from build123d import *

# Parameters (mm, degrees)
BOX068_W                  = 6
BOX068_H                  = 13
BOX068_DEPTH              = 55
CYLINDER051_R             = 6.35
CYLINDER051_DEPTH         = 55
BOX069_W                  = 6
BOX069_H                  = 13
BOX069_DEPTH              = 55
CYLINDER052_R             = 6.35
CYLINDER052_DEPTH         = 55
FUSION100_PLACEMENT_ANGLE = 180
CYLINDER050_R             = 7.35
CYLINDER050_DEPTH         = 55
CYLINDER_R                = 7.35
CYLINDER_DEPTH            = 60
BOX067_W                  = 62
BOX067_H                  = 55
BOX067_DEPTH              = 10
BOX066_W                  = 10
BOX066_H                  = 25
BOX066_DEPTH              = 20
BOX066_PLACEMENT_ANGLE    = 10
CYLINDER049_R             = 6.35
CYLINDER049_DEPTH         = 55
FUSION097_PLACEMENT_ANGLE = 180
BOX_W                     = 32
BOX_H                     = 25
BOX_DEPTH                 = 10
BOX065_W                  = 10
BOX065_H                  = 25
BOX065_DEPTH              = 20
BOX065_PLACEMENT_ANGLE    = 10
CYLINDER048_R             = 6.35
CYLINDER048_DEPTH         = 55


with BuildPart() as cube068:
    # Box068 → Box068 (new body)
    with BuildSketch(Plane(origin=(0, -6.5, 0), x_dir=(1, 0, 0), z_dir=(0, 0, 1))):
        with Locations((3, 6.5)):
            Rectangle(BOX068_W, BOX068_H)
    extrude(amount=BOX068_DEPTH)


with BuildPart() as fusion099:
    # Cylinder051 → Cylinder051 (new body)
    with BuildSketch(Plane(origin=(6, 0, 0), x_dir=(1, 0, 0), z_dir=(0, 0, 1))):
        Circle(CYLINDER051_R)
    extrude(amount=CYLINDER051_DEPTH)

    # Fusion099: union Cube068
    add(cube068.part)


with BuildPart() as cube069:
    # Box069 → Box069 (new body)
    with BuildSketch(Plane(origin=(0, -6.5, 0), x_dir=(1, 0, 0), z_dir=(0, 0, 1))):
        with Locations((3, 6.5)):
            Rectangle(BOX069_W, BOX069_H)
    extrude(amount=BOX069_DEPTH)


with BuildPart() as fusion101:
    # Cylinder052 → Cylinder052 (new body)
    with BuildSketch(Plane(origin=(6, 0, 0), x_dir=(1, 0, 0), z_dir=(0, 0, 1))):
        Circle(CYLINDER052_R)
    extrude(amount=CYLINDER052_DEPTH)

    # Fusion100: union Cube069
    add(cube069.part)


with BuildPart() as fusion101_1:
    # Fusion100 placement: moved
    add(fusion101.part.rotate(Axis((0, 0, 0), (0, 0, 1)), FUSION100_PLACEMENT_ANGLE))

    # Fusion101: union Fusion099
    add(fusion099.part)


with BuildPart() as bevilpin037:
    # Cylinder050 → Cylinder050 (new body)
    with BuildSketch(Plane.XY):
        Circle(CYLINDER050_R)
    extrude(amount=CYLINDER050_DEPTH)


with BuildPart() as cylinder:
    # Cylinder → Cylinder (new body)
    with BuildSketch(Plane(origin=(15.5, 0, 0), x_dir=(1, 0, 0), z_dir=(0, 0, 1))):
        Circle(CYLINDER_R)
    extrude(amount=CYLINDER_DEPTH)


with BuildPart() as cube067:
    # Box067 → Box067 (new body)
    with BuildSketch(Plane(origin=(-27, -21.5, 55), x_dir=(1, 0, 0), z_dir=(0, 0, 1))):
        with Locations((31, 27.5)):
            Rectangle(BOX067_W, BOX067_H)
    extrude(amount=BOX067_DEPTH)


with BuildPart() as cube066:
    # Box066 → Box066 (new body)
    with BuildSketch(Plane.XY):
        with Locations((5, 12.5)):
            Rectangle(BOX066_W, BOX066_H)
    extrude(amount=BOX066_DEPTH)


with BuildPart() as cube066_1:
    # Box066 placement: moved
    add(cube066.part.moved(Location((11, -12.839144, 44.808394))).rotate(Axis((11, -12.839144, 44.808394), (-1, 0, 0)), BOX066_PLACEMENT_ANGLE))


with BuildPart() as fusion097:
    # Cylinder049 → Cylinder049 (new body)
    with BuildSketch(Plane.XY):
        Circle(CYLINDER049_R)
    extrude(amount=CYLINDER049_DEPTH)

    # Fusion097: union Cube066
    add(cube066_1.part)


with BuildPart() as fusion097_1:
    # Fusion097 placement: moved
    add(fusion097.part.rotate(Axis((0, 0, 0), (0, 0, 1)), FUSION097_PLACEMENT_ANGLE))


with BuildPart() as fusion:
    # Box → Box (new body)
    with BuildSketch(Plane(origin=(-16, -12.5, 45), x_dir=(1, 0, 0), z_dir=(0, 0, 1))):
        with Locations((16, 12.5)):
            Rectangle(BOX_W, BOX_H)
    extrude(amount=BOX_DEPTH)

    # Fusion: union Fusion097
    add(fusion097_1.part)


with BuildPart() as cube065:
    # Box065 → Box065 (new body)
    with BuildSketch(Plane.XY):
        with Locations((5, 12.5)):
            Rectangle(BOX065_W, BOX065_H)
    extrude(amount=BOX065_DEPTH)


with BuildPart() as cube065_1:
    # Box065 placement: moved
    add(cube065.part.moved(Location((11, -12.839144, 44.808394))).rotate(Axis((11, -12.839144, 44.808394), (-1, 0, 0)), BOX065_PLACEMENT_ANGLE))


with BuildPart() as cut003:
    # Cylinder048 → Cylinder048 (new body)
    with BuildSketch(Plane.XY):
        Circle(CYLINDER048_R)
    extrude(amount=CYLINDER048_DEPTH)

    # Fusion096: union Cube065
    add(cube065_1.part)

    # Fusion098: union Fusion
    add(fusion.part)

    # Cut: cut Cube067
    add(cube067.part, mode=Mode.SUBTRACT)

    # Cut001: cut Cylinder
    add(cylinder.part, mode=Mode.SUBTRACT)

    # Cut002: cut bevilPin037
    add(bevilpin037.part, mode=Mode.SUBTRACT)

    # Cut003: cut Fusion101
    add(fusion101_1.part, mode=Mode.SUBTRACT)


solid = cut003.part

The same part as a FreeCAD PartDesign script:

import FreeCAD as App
import Part
import Sketcher

V = App.Vector
Q = App.Units.Quantity


def add_polygon(sketch, points):
    """Adds a closed chain of lines whose ends are joined by coincident constraints."""
    first, n = sketch.GeometryCount, len(points)
    for a, b in zip(points, points[1:] + points[:1]):
        sketch.addGeometry(Part.LineSegment(App.Vector(*a, 0), App.Vector(*b, 0)), False)
    for i in range(n):
        sketch.addConstraint(Sketcher.Constraint("Coincident", first + i, 2, first + (i + 1) % n, 1))

doc = App.newDocument("Part")
body = doc.addObject("PartDesign::Body", "Body")

# Sketch on XY plane
sketch1 = body.newObject("Sketcher::SketchObject", "Sketch")
sketch1.AttachmentSupport = (doc.getObject("XY_Plane"), [""])
sketch1.MapMode = "FlatFace"
add_polygon(sketch1, [(0, 6.5), (0, -6.5), (6, -6.5), (6, 6.5)])  # lines 0-3
sketch1.addConstraint([
    Sketcher.Constraint("Vertical", 0),
    Sketcher.Constraint("Horizontal", 1),
    Sketcher.Constraint("Vertical", 2),
    Sketcher.Constraint("Horizontal", 3),
    Sketcher.Constraint("Symmetric", 0, 2, 3, 2, -1, 1),
    Sketcher.Constraint("DistanceX", 1, 1, 1, 2, Q("6 mm")),
    Sketcher.Constraint("DistanceY", 0, 2, 0, 1, Q("13 mm")),
])
pad1 = body.newObject("PartDesign::Pad", "Pad")
pad1.Profile = sketch1
pad1.Length = 55
body2 = doc.addObject("PartDesign::Body", "Body001")

# Sketch on XY plane
sketch2 = body2.newObject("Sketcher::SketchObject", "Sketch001")
sketch2.AttachmentSupport = (doc.getObject("XY_Plane001"), [""])
sketch2.MapMode = "FlatFace"
sketch2.addGeometry(Part.Circle(V(6, 0, 0), V(0, 0, 1), 6.35), False)
sketch2.addConstraint([
    Sketcher.Constraint("PointOnObject", 0, 3, -1),
    Sketcher.Constraint("Diameter", 0, Q("12.7 mm")),
    Sketcher.Constraint("DistanceX", -1, 1, 0, 3, Q("6 mm")),
])
pad2 = body2.newObject("PartDesign::Pad", "Pad001")
pad2.Profile = sketch2
pad2.Length = 55
doc.recompute()

boolean = body2.newObject("PartDesign::Boolean", "Boolean")
boolean.Type = "Fuse"
boolean.addObjects([body])
body3 = doc.addObject("PartDesign::Body", "Body002")

# Sketch on XY plane
sketch3 = body3.newObject("Sketcher::SketchObject", "Sketch002")
sketch3.AttachmentSupport = (doc.getObject("XY_Plane002"), [""])
sketch3.MapMode = "FlatFace"
add_polygon(sketch3, [(0, 6.5), (0, -6.5), (6, -6.5), (6, 6.5)])  # lines 0-3
sketch3.addConstraint([
    Sketcher.Constraint("Vertical", 0),
    Sketcher.Constraint("Horizontal", 1),
    Sketcher.Constraint("Vertical", 2),
    Sketcher.Constraint("Horizontal", 3),
    Sketcher.Constraint("Symmetric", 0, 2, 3, 2, -1, 1),
    Sketcher.Constraint("DistanceX", 1, 1, 1, 2, Q("6 mm")),
    Sketcher.Constraint("DistanceY", 0, 2, 0, 1, Q("13 mm")),
])
pad3 = body3.newObject("PartDesign::Pad", "Pad002")
pad3.Profile = sketch3
pad3.Length = 55
body4 = doc.addObject("PartDesign::Body", "Body003")

# Sketch on XY plane
sketch4 = body4.newObject("Sketcher::SketchObject", "Sketch003")
sketch4.AttachmentSupport = (doc.getObject("XY_Plane003"), [""])
sketch4.MapMode = "FlatFace"
sketch4.addGeometry(Part.Circle(V(6, 0, 0), V(0, 0, 1), 6.35), False)
sketch4.addConstraint([
    Sketcher.Constraint("PointOnObject", 0, 3, -1),
    Sketcher.Constraint("Diameter", 0, Q("12.7 mm")),
    Sketcher.Constraint("DistanceX", -1, 1, 0, 3, Q("6 mm")),
])
pad4 = body4.newObject("PartDesign::Pad", "Pad003")
pad4.Profile = sketch4
pad4.Length = 55
doc.recompute()

boolean2 = body4.newObject("PartDesign::Boolean", "Boolean001")
boolean2.Type = "Fuse"
boolean2.addObjects([body3])
body5 = doc.addObject("PartDesign::Body", "Body004")
doc.recompute()

body4.Placement = App.Placement(V(0, 0, 0), App.Rotation(V(0, 0, 1), 180))
boolean3 = body5.newObject("PartDesign::Boolean", "Boolean002")
boolean3.Type = "Fuse"
boolean3.addObjects([body4])
doc.recompute()

boolean4 = body5.newObject("PartDesign::Boolean", "Boolean003")
boolean4.Type = "Fuse"
boolean4.addObjects([body2])
body6 = doc.addObject("PartDesign::Body", "Body005")

# Sketch on XY plane
sketch5 = body6.newObject("Sketcher::SketchObject", "Sketch004")
sketch5.AttachmentSupport = (doc.getObject("XY_Plane005"), [""])
sketch5.MapMode = "FlatFace"
sketch5.addGeometry(Part.Circle(V(0, 0, 0), V(0, 0, 1), 7.35), False)
sketch5.addConstraint([
    Sketcher.Constraint("Coincident", 0, 3, -1, 1),
    Sketcher.Constraint("Diameter", 0, Q("14.7 mm")),
])
pad5 = body6.newObject("PartDesign::Pad", "Pad004")
pad5.Profile = sketch5
pad5.Length = 55
body7 = doc.addObject("PartDesign::Body", "Body006")

# Sketch on XY plane
sketch6 = body7.newObject("Sketcher::SketchObject", "Sketch005")
sketch6.AttachmentSupport = (doc.getObject("XY_Plane006"), [""])
sketch6.MapMode = "FlatFace"
sketch6.addGeometry(Part.Circle(V(15.5, 0, 0), V(0, 0, 1), 7.35), False)
sketch6.addConstraint([
    Sketcher.Constraint("PointOnObject", 0, 3, -1),
    Sketcher.Constraint("Diameter", 0, Q("14.7 mm")),
    Sketcher.Constraint("DistanceX", -1, 1, 0, 3, Q("15.5 mm")),
])
pad6 = body7.newObject("PartDesign::Pad", "Pad005")
pad6.Profile = sketch6
pad6.Length = 60
body8 = doc.addObject("PartDesign::Body", "Body007")

# Sketch on XY plane
sketch7 = body8.newObject("Sketcher::SketchObject", "Sketch006")
sketch7.AttachmentSupport = (doc.getObject("XY_Plane007"), [""])
sketch7.MapMode = "FlatFace"
sketch7.AttachmentOffset = App.Placement(V(0, 0, 55), App.Rotation())
add_polygon(sketch7, [(-27, 33.5), (-27, -21.5), (35, -21.5), (35, 33.5)])  # lines 0-3
sketch7.addConstraint([
    Sketcher.Constraint("Vertical", 0),
    Sketcher.Constraint("Horizontal", 1),
    Sketcher.Constraint("Vertical", 2),
    Sketcher.Constraint("Horizontal", 3),
    Sketcher.Constraint("DistanceX", 1, 1, 1, 2, Q("62 mm")),
    Sketcher.Constraint("DistanceY", 0, 2, 0, 1, Q("55 mm")),
    Sketcher.Constraint("DistanceX", 0, 2, -1, 1, Q("27 mm")),
    Sketcher.Constraint("DistanceY", 0, 2, -1, 1, Q("21.5 mm")),
])
pad7 = body8.newObject("PartDesign::Pad", "Pad006")
pad7.Profile = sketch7
pad7.Length = 10
body9 = doc.addObject("PartDesign::Body", "Body008")

# Sketch on XY plane
sketch8 = body9.newObject("Sketcher::SketchObject", "Sketch007")
sketch8.AttachmentSupport = (doc.getObject("XY_Plane008"), [""])
sketch8.MapMode = "FlatFace"
add_polygon(sketch8, [(0, 25), (0, 0), (10, 0), (10, 25)])  # lines 0-3
sketch8.addConstraint([
    Sketcher.Constraint("Vertical", 0),
    Sketcher.Constraint("Horizontal", 1),
    Sketcher.Constraint("Vertical", 2),
    Sketcher.Constraint("Horizontal", 3),
    Sketcher.Constraint("Coincident", 0, 2, -1, 1),
    Sketcher.Constraint("DistanceX", 1, 1, 1, 2, Q("10 mm")),
    Sketcher.Constraint("DistanceY", 0, 2, 0, 1, Q("25 mm")),
])
pad8 = body9.newObject("PartDesign::Pad", "Pad007")
pad8.Profile = sketch8
pad8.Length = 20
body10 = doc.addObject("PartDesign::Body", "Body009")
doc.recompute()

body9.Placement = App.Placement(V(11, -12.839144, 44.808394), App.Rotation(V(-1, 0, 0), 10))
boolean5 = body10.newObject("PartDesign::Boolean", "Boolean004")
boolean5.Type = "Fuse"
boolean5.addObjects([body9])
body11 = doc.addObject("PartDesign::Body", "Body010")
body11.AllowCompound = True

# Sketch on XY plane
sketch9 = body11.newObject("Sketcher::SketchObject", "Sketch008")
sketch9.AttachmentSupport = (doc.getObject("XY_Plane010"), [""])
sketch9.MapMode = "FlatFace"
sketch9.addGeometry(Part.Circle(V(0, 0, 0), V(0, 0, 1), 6.35), False)
sketch9.addConstraint([
    Sketcher.Constraint("Coincident", 0, 3, -1, 1),
    Sketcher.Constraint("Diameter", 0, Q("12.7 mm")),
])
pad9 = body11.newObject("PartDesign::Pad", "Pad008")
pad9.Profile = sketch9
pad9.Length = 55
doc.recompute()

boolean6 = body11.newObject("PartDesign::Boolean", "Boolean005")
boolean6.Type = "Fuse"
boolean6.addObjects([body10])
body12 = doc.addObject("PartDesign::Body", "Body011")
body12.AllowCompound = True
doc.recompute()

body11.Placement = App.Placement(V(0, 0, 0), App.Rotation(V(0, 0, 1), 180))
boolean7 = body12.newObject("PartDesign::Boolean", "Boolean006")
boolean7.Type = "Fuse"
boolean7.addObjects([body11])
body13 = doc.addObject("PartDesign::Body", "Body012")

# Sketch on XY plane
sketch10 = body13.newObject("Sketcher::SketchObject", "Sketch009")
sketch10.AttachmentSupport = (doc.getObject("XY_Plane012"), [""])
sketch10.MapMode = "FlatFace"
sketch10.AttachmentOffset = App.Placement(V(0, 0, 45), App.Rotation())
add_polygon(sketch10, [(-16, 12.5), (-16, -12.5), (16, -12.5), (16, 12.5)])  # lines 0-3
sketch10.addConstraint([
    Sketcher.Constraint("Vertical", 0),
    Sketcher.Constraint("Horizontal", 1),
    Sketcher.Constraint("Vertical", 2),
    Sketcher.Constraint("Horizontal", 3),
    Sketcher.Constraint("Symmetric", 0, 2, 2, 2, -1, 1),
    Sketcher.Constraint("DistanceX", 1, 1, 1, 2, Q("32 mm")),
    Sketcher.Constraint("DistanceY", 0, 2, 0, 1, Q("25 mm")),
])
pad10 = body13.newObject("PartDesign::Pad", "Pad009")
pad10.Profile = sketch10
pad10.Length = 10
doc.recompute()

boolean8 = body13.newObject("PartDesign::Boolean", "Boolean007")
boolean8.Type = "Fuse"
boolean8.addObjects([body12])
body14 = doc.addObject("PartDesign::Body", "Body013")

# Sketch on XY plane
sketch11 = body14.newObject("Sketcher::SketchObject", "Sketch010")
sketch11.AttachmentSupport = (doc.getObject("XY_Plane013"), [""])
sketch11.MapMode = "FlatFace"
add_polygon(sketch11, [(0, 25), (0, 0), (10, 0), (10, 25)])  # lines 0-3
sketch11.addConstraint([
    Sketcher.Constraint("Vertical", 0),
    Sketcher.Constraint("Horizontal", 1),
    Sketcher.Constraint("Vertical", 2),
    Sketcher.Constraint("Horizontal", 3),
    Sketcher.Constraint("Coincident", 0, 2, -1, 1),
    Sketcher.Constraint("DistanceX", 1, 1, 1, 2, Q("10 mm")),
    Sketcher.Constraint("DistanceY", 0, 2, 0, 1, Q("25 mm")),
])
pad11 = body14.newObject("PartDesign::Pad", "Pad010")
pad11.Profile = sketch11
pad11.Length = 20
body15 = doc.addObject("PartDesign::Body", "Body014")
doc.recompute()

body14.Placement = App.Placement(V(11, -12.839144, 44.808394), App.Rotation(V(-1, 0, 0), 10))
boolean9 = body15.newObject("PartDesign::Boolean", "Boolean008")
boolean9.Type = "Fuse"
boolean9.addObjects([body14])
body16 = doc.addObject("PartDesign::Body", "Body015")
body16.AllowCompound = True

# Sketch on XY plane
sketch12 = body16.newObject("Sketcher::SketchObject", "Sketch011")
sketch12.AttachmentSupport = (doc.getObject("XY_Plane015"), [""])
sketch12.MapMode = "FlatFace"
sketch12.addGeometry(Part.Circle(V(0, 0, 0), V(0, 0, 1), 6.35), False)
sketch12.addConstraint([
    Sketcher.Constraint("Coincident", 0, 3, -1, 1),
    Sketcher.Constraint("Diameter", 0, Q("12.7 mm")),
])
pad12 = body16.newObject("PartDesign::Pad", "Pad011")
pad12.Profile = sketch12
pad12.Length = 55
doc.recompute()

boolean10 = body16.newObject("PartDesign::Boolean", "Boolean009")
boolean10.Type = "Fuse"
boolean10.addObjects([body15])
doc.recompute()

boolean11 = body16.newObject("PartDesign::Boolean", "Boolean010")
boolean11.Type = "Fuse"
boolean11.addObjects([body13])
doc.recompute()

boolean12 = body16.newObject("PartDesign::Boolean", "Boolean011")
boolean12.Type = "Cut"
boolean12.addObjects([body8])
doc.recompute()

boolean13 = body16.newObject("PartDesign::Boolean", "Boolean012")
boolean13.Type = "Cut"
boolean13.addObjects([body7])
doc.recompute()

boolean14 = body16.newObject("PartDesign::Boolean", "Boolean013")
boolean14.Type = "Cut"
boolean14.addObjects([body6])
doc.recompute()

boolean15 = body16.newObject("PartDesign::Boolean", "Boolean014")
boolean15.Type = "Cut"
boolean15.addObjects([body5])

doc.recompute()
